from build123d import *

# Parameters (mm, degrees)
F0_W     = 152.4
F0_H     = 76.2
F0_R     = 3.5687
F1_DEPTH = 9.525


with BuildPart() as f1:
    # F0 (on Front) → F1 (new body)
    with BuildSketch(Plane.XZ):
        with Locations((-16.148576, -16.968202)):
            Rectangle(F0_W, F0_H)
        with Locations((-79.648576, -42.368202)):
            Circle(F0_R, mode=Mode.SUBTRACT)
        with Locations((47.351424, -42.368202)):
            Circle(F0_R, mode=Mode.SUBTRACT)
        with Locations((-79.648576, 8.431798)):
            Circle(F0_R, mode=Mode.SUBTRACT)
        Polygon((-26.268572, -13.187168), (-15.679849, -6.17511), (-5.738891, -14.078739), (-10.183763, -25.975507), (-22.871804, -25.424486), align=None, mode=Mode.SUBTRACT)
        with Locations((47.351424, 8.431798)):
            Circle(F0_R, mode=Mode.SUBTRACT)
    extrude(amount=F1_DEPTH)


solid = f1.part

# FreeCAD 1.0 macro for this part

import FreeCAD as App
import Part
import Sketcher
from FreeCAD import Vector
Q = App.Units.Quantity

doc = App.newDocument("Part")
body = doc.addObject("PartDesign::Body", "Body")

sketch1 = body.newObject("Sketcher::SketchObject", "Sketch")
sketch1.AttachmentSupport = (doc.getObject("XZ_Plane"), [""])
sketch1.MapMode = "FlatFace"
sketch1.addGeometry([
    Part.LineSegment(Vector(-92.3, 21.1, 0), Vector(-92.3, -55.1, 0)),
    Part.LineSegment(Vector(-92.3, -55.1, 0), Vector(60.1, -55.1, 0)),
    Part.LineSegment(Vector(60.1, -55.1, 0), Vector(60.1, 21.1, 0)),
    Part.LineSegment(Vector(60.1, 21.1, 0), Vector(-92.3, 21.1, 0)),
    Part.Circle(Vector(-79.6, -42.4, 0), Vector(0, 0, 1), 3.6),
    Part.Circle(Vector(47.4, -42.4, 0), Vector(0, 0, 1), 3.6),
    Part.Circle(Vector(-79.6, 8.4, 0), Vector(0, 0, 1), 3.6),
    Part.LineSegment(Vector(-22.9, -25.4, 0), Vector(-26.3, -13.2, 0)),
    Part.LineSegment(Vector(-26.3, -13.2, 0), Vector(-15.7, -6.2, 0)),
    Part.LineSegment(Vector(-15.7, -6.2, 0), Vector(-5.7, -14.1, 0)),
    Part.LineSegment(Vector(-5.7, -14.1, 0), Vector(-10.2, -26, 0)),
    Part.LineSegment(Vector(-10.2, -26, 0), Vector(-22.9, -25.4, 0)),
    Part.Circle(Vector(47.4, 8.4, 0), Vector(0, 0, 1), 3.6),
], False)
sketch1.addConstraint([
    Sketcher.Constraint("Coincident", 0, 2, 1, 1),
    Sketcher.Constraint("Coincident", 1, 2, 2, 1),
    Sketcher.Constraint("Coincident", 2, 2, 3, 1),
    Sketcher.Constraint("Coincident", 3, 2, 0, 1),
    Sketcher.Constraint("Coincident", 7, 2, 8, 1),
    Sketcher.Constraint("Coincident", 8, 2, 9, 1),
    Sketcher.Constraint("Coincident", 9, 2, 10, 1),
    Sketcher.Constraint("Coincident", 10, 2, 11, 1),
    Sketcher.Constraint("Coincident", 11, 2, 7, 1),
    Sketcher.Constraint("Vertical", 0),
    Sketcher.Constraint("Horizontal", 1),
    Sketcher.Constraint("Vertical", 2),
    Sketcher.Constraint("Horizontal", 3),
    Sketcher.Constraint("Equal", 4, 5),
    Sketcher.Constraint("Equal", 5, 6),
    Sketcher.Constraint("Equal", 6, 12),
    Sketcher.Constraint("Horizontal", 4, 3, 5, 3),
    Sketcher.Constraint("Horizontal", 6, 3, 12, 3),
    Sketcher.Constraint("Vertical", 4, 3, 6, 3),
    Sketcher.Constraint("Vertical", 5, 3, 12, 3),
    Sketcher.Constraint("Equal", 7, 8),
    Sketcher.Constraint("Equal", 8, 9),
    Sketcher.Constraint("Equal", 9, 10),
    Sketcher.Constraint("Equal", 10, 11),
    Sketcher.Constraint("DistanceX", 1, 1, 1, 2, Q("6 in")),
    Sketcher.Constraint("DistanceY", 0, 2, 0, 1, Q("3 in")),
    Sketcher.Constraint("Diameter", 4, Q("0.281 in")),
    Sketcher.Constraint("DistanceX", 4, 3, 5, 3, Q("5 in")),
    Sketcher.Constraint("DistanceY", 4, 3, 6, 3, Q("2 in")),
    Sketcher.Constraint("Distance", 7, Q("0.5 in")),
    Sketcher.Constraint("DistanceX", 0, 2, 4, 3, Q("0.5 in")),
    Sketcher.Constraint("DistanceY", 0, 2, 4, 3, Q("0.5 in")),
    Sketcher.Constraint("DistanceY", 4, 3, -1, 1, Q("42.368202 mm")),
    Sketcher.Constraint("DistanceX", 7, 2, -1, 1, Q("26.268572 mm")),
    Sketcher.Constraint("DistanceX", 8, 2, -1, 1, Q("15.679849 mm")),
    Sketcher.Constraint("DistanceY", 8, 2, -1, 1, Q("6.17511 mm")),
    Sketcher.Constraint("DistanceX", 9, 2, -1, 1, Q("5.738891 mm")),
    Sketcher.Constraint("DistanceX", 7, 2, 10, 2, Q("16.084809 mm")),
    Sketcher.Constraint("DistanceX", 4, 3, -1, 1, Q("79.648576 mm")),
])
pad1 = body.newObject("PartDesign::Pad", "Pad")
pad1.Profile = sketch1
pad1.Length = Q("0.375 in")

doc.recompute()
